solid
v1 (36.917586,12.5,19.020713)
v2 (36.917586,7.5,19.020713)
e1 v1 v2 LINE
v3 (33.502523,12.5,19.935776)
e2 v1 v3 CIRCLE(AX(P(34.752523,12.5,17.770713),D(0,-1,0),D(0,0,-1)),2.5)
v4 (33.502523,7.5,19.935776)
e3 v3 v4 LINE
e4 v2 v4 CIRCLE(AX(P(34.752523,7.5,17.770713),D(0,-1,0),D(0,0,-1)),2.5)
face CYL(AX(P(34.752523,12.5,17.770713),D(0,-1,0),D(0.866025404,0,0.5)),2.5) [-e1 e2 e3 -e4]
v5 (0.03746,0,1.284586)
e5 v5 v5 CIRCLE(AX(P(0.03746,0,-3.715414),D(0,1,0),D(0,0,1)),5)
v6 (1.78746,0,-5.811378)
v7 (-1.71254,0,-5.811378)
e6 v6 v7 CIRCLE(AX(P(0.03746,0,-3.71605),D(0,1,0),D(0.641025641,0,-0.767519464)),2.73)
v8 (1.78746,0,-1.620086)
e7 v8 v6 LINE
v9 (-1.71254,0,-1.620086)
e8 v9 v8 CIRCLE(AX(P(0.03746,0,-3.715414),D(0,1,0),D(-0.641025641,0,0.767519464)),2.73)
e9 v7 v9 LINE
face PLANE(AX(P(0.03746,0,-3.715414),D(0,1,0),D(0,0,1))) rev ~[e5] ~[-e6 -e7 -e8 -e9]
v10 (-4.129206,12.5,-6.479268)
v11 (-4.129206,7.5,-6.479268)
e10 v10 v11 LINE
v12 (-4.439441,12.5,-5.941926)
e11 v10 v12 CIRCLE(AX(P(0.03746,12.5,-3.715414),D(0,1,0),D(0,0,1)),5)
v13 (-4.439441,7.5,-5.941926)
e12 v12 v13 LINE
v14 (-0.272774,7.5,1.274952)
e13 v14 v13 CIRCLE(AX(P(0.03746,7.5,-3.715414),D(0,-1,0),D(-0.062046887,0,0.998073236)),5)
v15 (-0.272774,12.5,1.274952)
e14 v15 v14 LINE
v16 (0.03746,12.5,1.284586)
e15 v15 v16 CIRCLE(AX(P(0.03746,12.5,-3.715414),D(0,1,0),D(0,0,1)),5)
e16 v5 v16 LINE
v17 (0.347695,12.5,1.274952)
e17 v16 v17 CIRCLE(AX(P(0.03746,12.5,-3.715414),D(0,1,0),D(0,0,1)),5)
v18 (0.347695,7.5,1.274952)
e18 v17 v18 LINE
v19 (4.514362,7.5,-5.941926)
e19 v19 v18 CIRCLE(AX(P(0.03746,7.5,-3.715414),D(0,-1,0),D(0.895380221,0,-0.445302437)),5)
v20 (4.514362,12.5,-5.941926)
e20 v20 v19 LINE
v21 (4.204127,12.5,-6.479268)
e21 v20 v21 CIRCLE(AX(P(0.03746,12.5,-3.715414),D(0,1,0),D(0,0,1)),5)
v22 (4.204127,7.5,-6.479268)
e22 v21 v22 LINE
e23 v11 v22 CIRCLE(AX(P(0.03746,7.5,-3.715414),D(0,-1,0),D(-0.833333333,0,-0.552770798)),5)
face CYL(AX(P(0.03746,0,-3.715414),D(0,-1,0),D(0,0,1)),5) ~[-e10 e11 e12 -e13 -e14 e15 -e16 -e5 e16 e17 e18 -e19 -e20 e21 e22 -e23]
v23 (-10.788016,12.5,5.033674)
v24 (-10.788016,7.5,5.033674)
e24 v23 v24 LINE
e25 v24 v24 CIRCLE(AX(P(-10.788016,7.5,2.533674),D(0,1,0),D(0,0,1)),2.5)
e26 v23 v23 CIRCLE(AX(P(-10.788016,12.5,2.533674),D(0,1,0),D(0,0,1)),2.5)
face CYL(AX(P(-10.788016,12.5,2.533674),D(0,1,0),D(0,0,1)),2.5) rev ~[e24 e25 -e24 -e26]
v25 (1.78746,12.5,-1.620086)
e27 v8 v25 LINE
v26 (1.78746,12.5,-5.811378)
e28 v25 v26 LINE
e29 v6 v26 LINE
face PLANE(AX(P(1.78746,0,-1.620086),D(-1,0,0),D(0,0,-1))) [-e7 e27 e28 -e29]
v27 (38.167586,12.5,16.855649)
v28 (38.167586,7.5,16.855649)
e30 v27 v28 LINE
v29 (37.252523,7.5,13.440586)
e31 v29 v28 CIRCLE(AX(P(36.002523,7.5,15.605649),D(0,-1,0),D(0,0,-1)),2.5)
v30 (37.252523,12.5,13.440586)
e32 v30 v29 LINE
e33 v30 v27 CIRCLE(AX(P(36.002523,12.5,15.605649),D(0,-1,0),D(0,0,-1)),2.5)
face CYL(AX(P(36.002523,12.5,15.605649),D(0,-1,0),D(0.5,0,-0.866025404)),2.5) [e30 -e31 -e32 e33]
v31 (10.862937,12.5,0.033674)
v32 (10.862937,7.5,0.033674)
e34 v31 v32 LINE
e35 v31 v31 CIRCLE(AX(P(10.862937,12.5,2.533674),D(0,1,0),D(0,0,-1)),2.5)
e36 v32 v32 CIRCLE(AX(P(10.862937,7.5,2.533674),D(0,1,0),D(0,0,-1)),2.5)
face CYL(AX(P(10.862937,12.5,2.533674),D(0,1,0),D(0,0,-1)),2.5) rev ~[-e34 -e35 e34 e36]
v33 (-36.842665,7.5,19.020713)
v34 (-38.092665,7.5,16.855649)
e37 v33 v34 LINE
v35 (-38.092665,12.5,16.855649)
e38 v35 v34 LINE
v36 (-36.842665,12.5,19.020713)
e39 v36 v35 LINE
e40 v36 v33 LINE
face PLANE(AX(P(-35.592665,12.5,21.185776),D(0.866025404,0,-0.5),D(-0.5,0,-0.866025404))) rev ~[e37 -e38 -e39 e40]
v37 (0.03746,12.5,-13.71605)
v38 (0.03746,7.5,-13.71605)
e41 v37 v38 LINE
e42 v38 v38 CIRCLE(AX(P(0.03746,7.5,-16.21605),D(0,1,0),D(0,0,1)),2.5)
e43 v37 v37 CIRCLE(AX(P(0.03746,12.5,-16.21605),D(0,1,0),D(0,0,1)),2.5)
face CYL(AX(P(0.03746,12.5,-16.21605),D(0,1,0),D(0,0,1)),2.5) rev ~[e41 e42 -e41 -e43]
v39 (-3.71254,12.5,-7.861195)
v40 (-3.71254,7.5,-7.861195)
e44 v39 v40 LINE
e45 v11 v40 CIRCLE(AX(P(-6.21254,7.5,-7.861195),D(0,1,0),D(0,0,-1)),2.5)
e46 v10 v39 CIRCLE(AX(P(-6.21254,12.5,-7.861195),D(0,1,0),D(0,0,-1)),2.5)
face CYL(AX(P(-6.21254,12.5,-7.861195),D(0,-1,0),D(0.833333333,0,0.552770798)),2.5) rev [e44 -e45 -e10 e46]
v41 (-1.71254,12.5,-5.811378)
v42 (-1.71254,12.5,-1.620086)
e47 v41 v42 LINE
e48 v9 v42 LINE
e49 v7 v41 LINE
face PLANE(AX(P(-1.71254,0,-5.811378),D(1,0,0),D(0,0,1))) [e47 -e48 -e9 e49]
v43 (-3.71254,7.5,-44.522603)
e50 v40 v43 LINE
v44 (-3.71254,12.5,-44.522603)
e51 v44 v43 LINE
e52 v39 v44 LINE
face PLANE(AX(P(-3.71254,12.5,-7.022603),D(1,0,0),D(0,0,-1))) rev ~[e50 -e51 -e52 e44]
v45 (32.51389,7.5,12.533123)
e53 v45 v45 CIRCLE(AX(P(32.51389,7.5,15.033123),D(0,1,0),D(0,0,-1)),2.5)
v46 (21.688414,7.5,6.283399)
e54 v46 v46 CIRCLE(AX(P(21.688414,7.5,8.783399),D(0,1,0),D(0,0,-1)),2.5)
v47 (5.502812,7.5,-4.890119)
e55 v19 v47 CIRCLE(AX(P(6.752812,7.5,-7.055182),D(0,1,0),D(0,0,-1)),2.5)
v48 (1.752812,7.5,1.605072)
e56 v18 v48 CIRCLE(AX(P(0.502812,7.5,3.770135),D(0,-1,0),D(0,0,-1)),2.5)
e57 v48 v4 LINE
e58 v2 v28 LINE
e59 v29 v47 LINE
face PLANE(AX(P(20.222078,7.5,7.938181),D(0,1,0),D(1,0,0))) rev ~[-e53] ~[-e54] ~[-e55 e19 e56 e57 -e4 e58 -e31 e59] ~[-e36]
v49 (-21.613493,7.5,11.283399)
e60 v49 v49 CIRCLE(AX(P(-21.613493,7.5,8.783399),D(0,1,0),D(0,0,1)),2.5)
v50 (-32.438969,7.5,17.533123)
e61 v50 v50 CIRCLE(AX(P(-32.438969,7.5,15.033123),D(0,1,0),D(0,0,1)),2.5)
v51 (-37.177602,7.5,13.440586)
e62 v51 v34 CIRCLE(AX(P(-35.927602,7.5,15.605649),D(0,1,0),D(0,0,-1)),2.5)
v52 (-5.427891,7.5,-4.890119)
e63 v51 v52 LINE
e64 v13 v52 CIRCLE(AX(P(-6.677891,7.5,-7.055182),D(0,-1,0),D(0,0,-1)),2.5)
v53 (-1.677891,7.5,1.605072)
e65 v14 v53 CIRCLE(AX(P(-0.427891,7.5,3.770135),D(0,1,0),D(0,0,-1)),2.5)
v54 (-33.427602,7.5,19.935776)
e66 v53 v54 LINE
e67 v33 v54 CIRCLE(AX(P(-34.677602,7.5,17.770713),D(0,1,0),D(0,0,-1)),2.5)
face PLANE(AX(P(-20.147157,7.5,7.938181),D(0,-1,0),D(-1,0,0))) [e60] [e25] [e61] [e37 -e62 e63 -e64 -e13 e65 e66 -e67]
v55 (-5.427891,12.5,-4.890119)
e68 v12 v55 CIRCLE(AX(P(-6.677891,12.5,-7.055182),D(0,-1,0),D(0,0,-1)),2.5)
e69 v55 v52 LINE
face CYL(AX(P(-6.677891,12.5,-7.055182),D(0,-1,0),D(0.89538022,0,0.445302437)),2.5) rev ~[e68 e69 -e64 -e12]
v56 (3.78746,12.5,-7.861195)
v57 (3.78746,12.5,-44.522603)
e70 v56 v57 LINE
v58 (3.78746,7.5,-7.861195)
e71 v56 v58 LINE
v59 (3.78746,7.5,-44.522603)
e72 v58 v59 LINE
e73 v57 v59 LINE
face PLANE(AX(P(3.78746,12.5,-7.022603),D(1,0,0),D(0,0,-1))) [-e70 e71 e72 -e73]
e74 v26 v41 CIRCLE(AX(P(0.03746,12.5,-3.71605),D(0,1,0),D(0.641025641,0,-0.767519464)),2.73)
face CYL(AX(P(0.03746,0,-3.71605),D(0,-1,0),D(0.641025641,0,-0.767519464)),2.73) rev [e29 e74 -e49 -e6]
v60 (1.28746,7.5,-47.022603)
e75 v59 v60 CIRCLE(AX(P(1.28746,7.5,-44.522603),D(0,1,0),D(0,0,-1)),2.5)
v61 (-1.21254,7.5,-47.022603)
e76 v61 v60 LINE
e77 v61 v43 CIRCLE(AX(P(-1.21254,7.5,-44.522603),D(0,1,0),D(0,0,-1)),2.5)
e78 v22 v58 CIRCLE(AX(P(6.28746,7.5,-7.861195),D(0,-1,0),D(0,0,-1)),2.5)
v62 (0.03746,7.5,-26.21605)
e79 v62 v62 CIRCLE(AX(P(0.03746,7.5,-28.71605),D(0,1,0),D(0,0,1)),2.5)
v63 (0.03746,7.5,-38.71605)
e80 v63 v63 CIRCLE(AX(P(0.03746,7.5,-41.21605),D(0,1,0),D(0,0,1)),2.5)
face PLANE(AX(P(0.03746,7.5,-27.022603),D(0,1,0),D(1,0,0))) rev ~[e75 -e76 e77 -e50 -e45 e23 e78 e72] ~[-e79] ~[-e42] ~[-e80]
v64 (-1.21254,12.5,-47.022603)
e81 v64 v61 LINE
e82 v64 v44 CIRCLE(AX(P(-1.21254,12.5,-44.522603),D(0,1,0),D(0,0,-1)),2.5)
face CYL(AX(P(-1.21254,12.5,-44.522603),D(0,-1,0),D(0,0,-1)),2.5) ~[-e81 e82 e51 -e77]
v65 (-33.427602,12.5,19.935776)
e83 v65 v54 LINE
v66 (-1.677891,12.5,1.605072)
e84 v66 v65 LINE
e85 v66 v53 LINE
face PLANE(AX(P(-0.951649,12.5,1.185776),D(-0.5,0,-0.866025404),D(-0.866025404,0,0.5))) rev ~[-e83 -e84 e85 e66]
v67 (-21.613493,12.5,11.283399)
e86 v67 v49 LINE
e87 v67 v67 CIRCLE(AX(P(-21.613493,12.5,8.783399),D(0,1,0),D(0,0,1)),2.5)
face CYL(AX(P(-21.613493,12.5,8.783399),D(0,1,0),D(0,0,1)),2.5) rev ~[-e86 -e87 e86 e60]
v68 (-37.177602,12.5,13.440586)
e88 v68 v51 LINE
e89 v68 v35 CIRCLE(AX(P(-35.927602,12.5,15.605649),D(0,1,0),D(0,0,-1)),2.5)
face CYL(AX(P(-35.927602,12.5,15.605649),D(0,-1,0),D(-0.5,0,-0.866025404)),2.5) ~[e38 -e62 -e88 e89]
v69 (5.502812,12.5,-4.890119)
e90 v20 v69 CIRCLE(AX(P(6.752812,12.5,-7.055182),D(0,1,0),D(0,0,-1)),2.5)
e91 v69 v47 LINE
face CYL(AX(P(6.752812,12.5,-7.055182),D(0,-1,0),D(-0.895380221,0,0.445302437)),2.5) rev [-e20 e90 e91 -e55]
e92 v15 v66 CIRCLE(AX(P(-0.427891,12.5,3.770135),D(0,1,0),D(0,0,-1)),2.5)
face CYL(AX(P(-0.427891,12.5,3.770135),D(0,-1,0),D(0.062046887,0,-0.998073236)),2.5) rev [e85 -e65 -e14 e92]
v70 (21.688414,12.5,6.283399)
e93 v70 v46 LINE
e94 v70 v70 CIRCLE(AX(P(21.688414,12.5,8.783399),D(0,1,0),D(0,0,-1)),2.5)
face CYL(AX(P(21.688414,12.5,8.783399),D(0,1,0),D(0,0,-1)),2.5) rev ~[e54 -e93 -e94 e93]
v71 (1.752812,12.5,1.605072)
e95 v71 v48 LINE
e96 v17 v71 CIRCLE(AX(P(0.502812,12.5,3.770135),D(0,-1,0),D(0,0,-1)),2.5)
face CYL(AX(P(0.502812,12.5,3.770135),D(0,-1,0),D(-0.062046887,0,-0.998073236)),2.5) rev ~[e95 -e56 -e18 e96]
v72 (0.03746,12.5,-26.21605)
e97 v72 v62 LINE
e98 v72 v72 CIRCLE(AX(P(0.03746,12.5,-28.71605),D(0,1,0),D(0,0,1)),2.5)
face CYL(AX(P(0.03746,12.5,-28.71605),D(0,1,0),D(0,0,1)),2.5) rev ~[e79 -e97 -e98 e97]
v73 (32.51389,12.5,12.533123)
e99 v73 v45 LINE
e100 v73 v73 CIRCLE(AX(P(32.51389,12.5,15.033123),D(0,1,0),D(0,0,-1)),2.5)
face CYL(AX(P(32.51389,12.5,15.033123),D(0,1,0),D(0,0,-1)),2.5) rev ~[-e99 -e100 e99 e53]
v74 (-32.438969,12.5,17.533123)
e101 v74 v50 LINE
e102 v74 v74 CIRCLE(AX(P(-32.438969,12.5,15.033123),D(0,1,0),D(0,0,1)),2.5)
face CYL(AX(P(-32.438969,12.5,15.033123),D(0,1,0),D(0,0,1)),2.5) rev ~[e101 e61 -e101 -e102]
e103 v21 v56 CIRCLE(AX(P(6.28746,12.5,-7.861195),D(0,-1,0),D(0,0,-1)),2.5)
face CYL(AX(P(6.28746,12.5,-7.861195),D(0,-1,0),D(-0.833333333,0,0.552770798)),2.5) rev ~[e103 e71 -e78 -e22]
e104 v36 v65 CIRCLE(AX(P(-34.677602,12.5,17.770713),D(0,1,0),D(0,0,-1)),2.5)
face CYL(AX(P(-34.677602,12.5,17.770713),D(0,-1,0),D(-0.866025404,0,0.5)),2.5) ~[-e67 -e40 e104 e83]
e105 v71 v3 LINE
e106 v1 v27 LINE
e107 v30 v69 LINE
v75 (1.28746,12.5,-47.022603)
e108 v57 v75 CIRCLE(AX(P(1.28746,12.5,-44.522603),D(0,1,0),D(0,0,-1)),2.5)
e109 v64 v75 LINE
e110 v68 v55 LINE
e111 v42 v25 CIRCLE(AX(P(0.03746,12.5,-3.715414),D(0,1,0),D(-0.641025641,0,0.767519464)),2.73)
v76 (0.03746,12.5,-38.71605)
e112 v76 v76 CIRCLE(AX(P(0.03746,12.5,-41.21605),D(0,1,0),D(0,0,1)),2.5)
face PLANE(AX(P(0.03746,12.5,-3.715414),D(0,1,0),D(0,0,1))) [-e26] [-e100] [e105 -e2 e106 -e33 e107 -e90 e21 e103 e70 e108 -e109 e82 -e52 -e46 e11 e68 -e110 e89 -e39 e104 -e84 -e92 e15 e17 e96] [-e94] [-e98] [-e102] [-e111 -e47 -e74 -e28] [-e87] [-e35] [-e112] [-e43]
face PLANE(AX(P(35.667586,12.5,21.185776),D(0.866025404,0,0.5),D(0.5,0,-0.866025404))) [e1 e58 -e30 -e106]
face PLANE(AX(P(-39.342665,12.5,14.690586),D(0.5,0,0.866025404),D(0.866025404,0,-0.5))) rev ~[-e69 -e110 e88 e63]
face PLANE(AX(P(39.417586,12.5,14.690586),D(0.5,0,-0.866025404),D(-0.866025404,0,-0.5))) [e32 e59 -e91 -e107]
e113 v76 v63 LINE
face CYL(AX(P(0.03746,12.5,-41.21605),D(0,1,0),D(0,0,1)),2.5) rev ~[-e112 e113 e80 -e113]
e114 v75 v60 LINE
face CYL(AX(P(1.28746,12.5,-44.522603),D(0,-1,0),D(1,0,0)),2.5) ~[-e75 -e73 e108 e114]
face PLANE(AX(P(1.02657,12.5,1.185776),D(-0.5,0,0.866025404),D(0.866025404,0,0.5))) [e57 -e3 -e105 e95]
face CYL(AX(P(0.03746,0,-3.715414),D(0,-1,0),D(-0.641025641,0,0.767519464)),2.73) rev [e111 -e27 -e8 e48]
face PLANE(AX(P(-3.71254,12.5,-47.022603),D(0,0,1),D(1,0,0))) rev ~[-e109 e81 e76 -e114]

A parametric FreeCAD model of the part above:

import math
import FreeCAD as App
import Part
import Sketcher

V = App.Vector
Q = App.Units.Quantity


def edges_at(feature, points):
    """Names of the edges that pass closest to the given points."""
    edges = feature.Shape.Edges
    near = lambda p: min(range(len(edges)), key=lambda i: edges[i].distToShape(Part.Vertex(*p))[0])
    return sorted({f"Edge{near(p) + 1}" for p in points})

doc = App.newDocument("Part")
body = doc.addObject("PartDesign::Body", "Body")

sketch1 = body.newObject("Sketcher::SketchObject", "Sketch")
sketch1.AttachmentSupport = (doc.getObject("XZ_Plane"), [""])
sketch1.MapMode = "FlatFace"
sketch1.addGeometry([
    Part.Circle(V(0, -3.7, 0), V(0, 0, 1), 5),
    Part.ArcOfCircle(Part.Circle(V(0, -3.7, 0), V(0, 0, 1), 2.7), math.radians(50), math.radians(130)),
    Part.LineSegment(V(-1.7, -1.6, 0), V(-1.7, -5.8, 0)),
    Part.ArcOfCircle(Part.Circle(V(0, -3.7, 0), V(0, 0, 1), 2.7), math.radians(-130), math.radians(-50)),
    Part.LineSegment(V(1.8, -5.8, 0), V(1.8, -1.6, 0)),
], False)
sketch1.addConstraint([
    Sketcher.Constraint("Coincident", 1, 2, 2, 1),
    Sketcher.Constraint("Coincident", 2, 2, 3, 1),
    Sketcher.Constraint("Coincident", 3, 2, 4, 1),
    Sketcher.Constraint("Coincident", 4, 2, 1, 1),
    Sketcher.Constraint("Vertical", 2),
    Sketcher.Constraint("Vertical", 4),
    Sketcher.Constraint("Coincident", 1, 3, 0, 3),
    Sketcher.Constraint("Equal", 1, 3),
    Sketcher.Constraint("Horizontal", 2, 2, 3, 2),
    Sketcher.Constraint("Horizontal", 1, 2, 4, 2),
    Sketcher.Constraint("Diameter", 0, Q("10 mm")),
    Sketcher.Constraint("Radius", 1, Q("2.73 mm")),
    Sketcher.Constraint("DistanceX", 2, 2, 3, 2, Q("3.5 mm")),
    Sketcher.Constraint("DistanceY", 2, 2, 2, 1, Q("4.191293 mm")),
    Sketcher.Constraint("DistanceX", -1, 1, 0, 3, Q("0.03746 mm")),
    Sketcher.Constraint("DistanceY", 3, 3, -1, 1, Q("3.71605 mm")),
])
pad1 = body.newObject("PartDesign::Pad", "Pad")
pad1.Profile = sketch1
pad1.Length = 12.5
pad1.Reversed = True

sketch2 = body.newObject("Sketcher::SketchObject", "Sketch001")
sketch2.AttachmentSupport = (doc.getObject("XZ_Plane"), [""])
sketch2.MapMode = "FlatFace"
sketch2.AttachmentOffset = App.Placement(V(0, 0, -12.5), App.Rotation())
sketch2.addGeometry([
    Part.LineSegment(V(5, -5, 0), V(1, 1, 0)),
    Part.LineSegment(V(1, 1, 0), V(36, 21, 0)),
    Part.LineSegment(V(36, 21, 0), V(39, 15, 0)),
    Part.LineSegment(V(39, 15, 0), V(5, -5, 0)),
    Part.LineSegment(V(-4, -47, 0), V(-4, -7, 0)),
    Part.LineSegment(V(-4, -7, 0), V(4, -7, 0)),
    Part.LineSegment(V(4, -7, 0), V(4, -47, 0)),
    Part.LineSegment(V(4, -47, 0), V(-4, -47, 0)),
    Part.LineSegment(V(-1, 1, 0), V(-5, -5, 0)),
    Part.LineSegment(V(-5, -5, 0), V(-39, 15, 0)),
    Part.LineSegment(V(-39, 15, 0), V(-36, 21, 0)),
    Part.LineSegment(V(-36, 21, 0), V(-1, 1, 0)),
], False)
sketch2.addConstraint([
    Sketcher.Constraint("Coincident", 0, 2, 1, 1),
    Sketcher.Constraint("Coincident", 1, 2, 2, 1),
    Sketcher.Constraint("Coincident", 2, 2, 3, 1),
    Sketcher.Constraint("Coincident", 3, 2, 0, 1),
    Sketcher.Constraint("Coincident", 4, 2, 5, 1),
    Sketcher.Constraint("Coincident", 5, 2, 6, 1),
    Sketcher.Constraint("Coincident", 6, 2, 7, 1),
    Sketcher.Constraint("Coincident", 7, 2, 4, 1),
    Sketcher.Constraint("Coincident", 8, 2, 9, 1),
    Sketcher.Constraint("Coincident", 9, 2, 10, 1),
    Sketcher.Constraint("Coincident", 10, 2, 11, 1),
    Sketcher.Constraint("Coincident", 11, 2, 8, 1),
    Sketcher.Constraint("Vertical", 4),
    Sketcher.Constraint("Horizontal", 5),
    Sketcher.Constraint("Vertical", 6),
    Sketcher.Constraint("Horizontal", 7),
    Sketcher.Constraint("Perpendicular", 0, 1),
    Sketcher.Constraint("Perpendicular", 1, 2),
    Sketcher.Constraint("Perpendicular", 2, 3),
    Sketcher.Constraint("Perpendicular", 8, 9),
    Sketcher.Constraint("Perpendicular", 9, 10),
    Sketcher.Constraint("Perpendicular", 10, 11),
    Sketcher.Constraint("Horizontal", 3, 2, 8, 2),
    Sketcher.Constraint("Horizontal", 2, 2, 9, 2),
    Sketcher.Constraint("Horizontal", 1, 2, 10, 2),
    Sketcher.Constraint("Equal", 2, 8),
    Sketcher.Constraint("DistanceY", 4, 1, 4, 2, Q("40 mm")),
    Sketcher.Constraint("Angle", 0, Q("120 deg")),
    Sketcher.Constraint("Distance", 1, Q("40 mm")),
    Sketcher.Constraint("DistanceX", 5, 1, 5, 2, Q("7.5 mm")),
    Sketcher.Constraint("Distance", 0, Q("7.5 mm")),
    Sketcher.Constraint("DistanceX", -1, 1, 0, 2, Q("1.02657 mm")),
    Sketcher.Constraint("DistanceX", 4, 2, -1, 1, Q("3.71254 mm")),
    Sketcher.Constraint("DistanceX", 8, 2, -1, 1, Q("4.701649 mm")),
    Sketcher.Constraint("DistanceY", 4, 2, 3, 2, Q("1.713188 mm")),
    Sketcher.Constraint("DistanceY", -1, 1, 0, 2, Q("1.185776 mm")),
])
pad2 = body.newObject("PartDesign::Pad", "Pad001")
pad2.Profile = sketch2
pad2.Length = 5

sketch3 = body.newObject("Sketcher::SketchObject", "Sketch002")
sketch3.AttachmentSupport = (doc.getObject("XZ_Plane"), [""])
sketch3.MapMode = "FlatFace"
sketch3.AttachmentOffset = App.Placement(V(0, 0, -12.5), App.Rotation())
sketch3.addGeometry([
    Part.Circle(V(0, -16.2, 0), V(0, 0, 1), 2.5),
    Part.Circle(V(0, -28.7, 0), V(0, 0, 1), 2.5),
    Part.Circle(V(0, -41.2, 0), V(0, 0, 1), 2.5),
    Part.Circle(V(-10.8, 2.5, 0), V(0, 0, 1), 2.5),
    Part.Circle(V(-21.6, 8.8, 0), V(0, 0, 1), 2.5),
    Part.Circle(V(-32.4, 15, 0), V(0, 0, 1), 2.5),
    Part.Circle(V(10.9, 2.5, 0), V(0, 0, 1), 2.5),
    Part.Circle(V(21.7, 8.8, 0), V(0, 0, 1), 2.5),
    Part.Circle(V(32.5, 15, 0), V(0, 0, 1), 2.5),
], False)
sketch3.addConstraint([
    Sketcher.Constraint("Equal", 0, 1),
    Sketcher.Constraint("Equal", 1, 2),
    Sketcher.Constraint("Equal", 2, 3),
    Sketcher.Constraint("Equal", 3, 4),
    Sketcher.Constraint("Equal", 4, 5),
    Sketcher.Constraint("Equal", 5, 6),
    Sketcher.Constraint("Equal", 6, 7),
    Sketcher.Constraint("Equal", 7, 8),
    Sketcher.Constraint("Horizontal", 3, 3, 6, 3),
    Sketcher.Constraint("Horizontal", 4, 3, 7, 3),
    Sketcher.Constraint("Horizontal", 5, 3, 8, 3),
    Sketcher.Constraint("Vertical", 0, 3, 1, 3),
    Sketcher.Constraint("Vertical", 1, 3, 2, 3),
    Sketcher.Constraint("Diameter", 0, Q("5 mm")),
    Sketcher.Constraint("DistanceY", 2, 3, 0, 3, Q("25 mm")),
    Sketcher.Constraint("DistanceY", 1, 3, 0, 3, Q("12.5 mm")),
    Sketcher.Constraint("DistanceY", -1, 1, 4, 3, Q("8.783399 mm")),
    Sketcher.Constraint("DistanceX", -1, 1, 0, 3, Q("0.03746 mm")),
    Sketcher.Constraint("DistanceY", 0, 3, -1, 1, Q("16.21605 mm")),
    Sketcher.Constraint("DistanceX", 5, 3, -1, 1, Q("32.438969 mm")),
    Sketcher.Constraint("DistanceX", -1, 1, 8, 3, Q("32.51389 mm")),
    Sketcher.Constraint("DistanceY", 3, 3, 5, 3, Q("12.499449 mm")),
    Sketcher.Constraint("DistanceX", 4, 3, 6, 3, Q("32.47643 mm")),
    Sketcher.Constraint("DistanceX", 3, 3, 7, 3, Q("32.47643 mm")),
    Sketcher.Constraint("DistanceX", 3, 3, -1, 1, Q("10.788016 mm")),
    Sketcher.Constraint("DistanceY", -1, 1, 3, 3, Q("2.533674 mm")),
    Sketcher.Constraint("DistanceX", 4, 3, -1, 1, Q("21.613493 mm")),
])
pocket1 = body.newObject("PartDesign::Pocket", "Pocket")
pocket1.Profile = sketch3
pocket1.Length = 100
pocket1.Reversed = True
doc.recompute()

fillet = body.newObject("PartDesign::Fillet", "Fillet")
fillet.Base = (pocket1, edges_at(pocket1, [
    (4.777, 10, -5.309),
    (1.027, 10, 1.186),
    (-3.713, 10, -7.023),
    (3.787, 10, -7.023),
    (-4.702, 10, -5.309),
    (-0.952, 10, 1.186),
]))
fillet.Radius = 2.5
doc.recompute()

fillet2 = body.newObject("PartDesign::Fillet", "Fillet001")
fillet2.Base = (fillet, edges_at(fillet, [
    (39.418, 10, 14.691),
    (35.668, 10, 21.186),
    (-3.713, 10, -47.023),
    (3.787, 10, -47.023),
    (-39.343, 10, 14.691),
    (-35.593, 10, 21.186),
]))
fillet2.Radius = 2.5

doc.recompute()
